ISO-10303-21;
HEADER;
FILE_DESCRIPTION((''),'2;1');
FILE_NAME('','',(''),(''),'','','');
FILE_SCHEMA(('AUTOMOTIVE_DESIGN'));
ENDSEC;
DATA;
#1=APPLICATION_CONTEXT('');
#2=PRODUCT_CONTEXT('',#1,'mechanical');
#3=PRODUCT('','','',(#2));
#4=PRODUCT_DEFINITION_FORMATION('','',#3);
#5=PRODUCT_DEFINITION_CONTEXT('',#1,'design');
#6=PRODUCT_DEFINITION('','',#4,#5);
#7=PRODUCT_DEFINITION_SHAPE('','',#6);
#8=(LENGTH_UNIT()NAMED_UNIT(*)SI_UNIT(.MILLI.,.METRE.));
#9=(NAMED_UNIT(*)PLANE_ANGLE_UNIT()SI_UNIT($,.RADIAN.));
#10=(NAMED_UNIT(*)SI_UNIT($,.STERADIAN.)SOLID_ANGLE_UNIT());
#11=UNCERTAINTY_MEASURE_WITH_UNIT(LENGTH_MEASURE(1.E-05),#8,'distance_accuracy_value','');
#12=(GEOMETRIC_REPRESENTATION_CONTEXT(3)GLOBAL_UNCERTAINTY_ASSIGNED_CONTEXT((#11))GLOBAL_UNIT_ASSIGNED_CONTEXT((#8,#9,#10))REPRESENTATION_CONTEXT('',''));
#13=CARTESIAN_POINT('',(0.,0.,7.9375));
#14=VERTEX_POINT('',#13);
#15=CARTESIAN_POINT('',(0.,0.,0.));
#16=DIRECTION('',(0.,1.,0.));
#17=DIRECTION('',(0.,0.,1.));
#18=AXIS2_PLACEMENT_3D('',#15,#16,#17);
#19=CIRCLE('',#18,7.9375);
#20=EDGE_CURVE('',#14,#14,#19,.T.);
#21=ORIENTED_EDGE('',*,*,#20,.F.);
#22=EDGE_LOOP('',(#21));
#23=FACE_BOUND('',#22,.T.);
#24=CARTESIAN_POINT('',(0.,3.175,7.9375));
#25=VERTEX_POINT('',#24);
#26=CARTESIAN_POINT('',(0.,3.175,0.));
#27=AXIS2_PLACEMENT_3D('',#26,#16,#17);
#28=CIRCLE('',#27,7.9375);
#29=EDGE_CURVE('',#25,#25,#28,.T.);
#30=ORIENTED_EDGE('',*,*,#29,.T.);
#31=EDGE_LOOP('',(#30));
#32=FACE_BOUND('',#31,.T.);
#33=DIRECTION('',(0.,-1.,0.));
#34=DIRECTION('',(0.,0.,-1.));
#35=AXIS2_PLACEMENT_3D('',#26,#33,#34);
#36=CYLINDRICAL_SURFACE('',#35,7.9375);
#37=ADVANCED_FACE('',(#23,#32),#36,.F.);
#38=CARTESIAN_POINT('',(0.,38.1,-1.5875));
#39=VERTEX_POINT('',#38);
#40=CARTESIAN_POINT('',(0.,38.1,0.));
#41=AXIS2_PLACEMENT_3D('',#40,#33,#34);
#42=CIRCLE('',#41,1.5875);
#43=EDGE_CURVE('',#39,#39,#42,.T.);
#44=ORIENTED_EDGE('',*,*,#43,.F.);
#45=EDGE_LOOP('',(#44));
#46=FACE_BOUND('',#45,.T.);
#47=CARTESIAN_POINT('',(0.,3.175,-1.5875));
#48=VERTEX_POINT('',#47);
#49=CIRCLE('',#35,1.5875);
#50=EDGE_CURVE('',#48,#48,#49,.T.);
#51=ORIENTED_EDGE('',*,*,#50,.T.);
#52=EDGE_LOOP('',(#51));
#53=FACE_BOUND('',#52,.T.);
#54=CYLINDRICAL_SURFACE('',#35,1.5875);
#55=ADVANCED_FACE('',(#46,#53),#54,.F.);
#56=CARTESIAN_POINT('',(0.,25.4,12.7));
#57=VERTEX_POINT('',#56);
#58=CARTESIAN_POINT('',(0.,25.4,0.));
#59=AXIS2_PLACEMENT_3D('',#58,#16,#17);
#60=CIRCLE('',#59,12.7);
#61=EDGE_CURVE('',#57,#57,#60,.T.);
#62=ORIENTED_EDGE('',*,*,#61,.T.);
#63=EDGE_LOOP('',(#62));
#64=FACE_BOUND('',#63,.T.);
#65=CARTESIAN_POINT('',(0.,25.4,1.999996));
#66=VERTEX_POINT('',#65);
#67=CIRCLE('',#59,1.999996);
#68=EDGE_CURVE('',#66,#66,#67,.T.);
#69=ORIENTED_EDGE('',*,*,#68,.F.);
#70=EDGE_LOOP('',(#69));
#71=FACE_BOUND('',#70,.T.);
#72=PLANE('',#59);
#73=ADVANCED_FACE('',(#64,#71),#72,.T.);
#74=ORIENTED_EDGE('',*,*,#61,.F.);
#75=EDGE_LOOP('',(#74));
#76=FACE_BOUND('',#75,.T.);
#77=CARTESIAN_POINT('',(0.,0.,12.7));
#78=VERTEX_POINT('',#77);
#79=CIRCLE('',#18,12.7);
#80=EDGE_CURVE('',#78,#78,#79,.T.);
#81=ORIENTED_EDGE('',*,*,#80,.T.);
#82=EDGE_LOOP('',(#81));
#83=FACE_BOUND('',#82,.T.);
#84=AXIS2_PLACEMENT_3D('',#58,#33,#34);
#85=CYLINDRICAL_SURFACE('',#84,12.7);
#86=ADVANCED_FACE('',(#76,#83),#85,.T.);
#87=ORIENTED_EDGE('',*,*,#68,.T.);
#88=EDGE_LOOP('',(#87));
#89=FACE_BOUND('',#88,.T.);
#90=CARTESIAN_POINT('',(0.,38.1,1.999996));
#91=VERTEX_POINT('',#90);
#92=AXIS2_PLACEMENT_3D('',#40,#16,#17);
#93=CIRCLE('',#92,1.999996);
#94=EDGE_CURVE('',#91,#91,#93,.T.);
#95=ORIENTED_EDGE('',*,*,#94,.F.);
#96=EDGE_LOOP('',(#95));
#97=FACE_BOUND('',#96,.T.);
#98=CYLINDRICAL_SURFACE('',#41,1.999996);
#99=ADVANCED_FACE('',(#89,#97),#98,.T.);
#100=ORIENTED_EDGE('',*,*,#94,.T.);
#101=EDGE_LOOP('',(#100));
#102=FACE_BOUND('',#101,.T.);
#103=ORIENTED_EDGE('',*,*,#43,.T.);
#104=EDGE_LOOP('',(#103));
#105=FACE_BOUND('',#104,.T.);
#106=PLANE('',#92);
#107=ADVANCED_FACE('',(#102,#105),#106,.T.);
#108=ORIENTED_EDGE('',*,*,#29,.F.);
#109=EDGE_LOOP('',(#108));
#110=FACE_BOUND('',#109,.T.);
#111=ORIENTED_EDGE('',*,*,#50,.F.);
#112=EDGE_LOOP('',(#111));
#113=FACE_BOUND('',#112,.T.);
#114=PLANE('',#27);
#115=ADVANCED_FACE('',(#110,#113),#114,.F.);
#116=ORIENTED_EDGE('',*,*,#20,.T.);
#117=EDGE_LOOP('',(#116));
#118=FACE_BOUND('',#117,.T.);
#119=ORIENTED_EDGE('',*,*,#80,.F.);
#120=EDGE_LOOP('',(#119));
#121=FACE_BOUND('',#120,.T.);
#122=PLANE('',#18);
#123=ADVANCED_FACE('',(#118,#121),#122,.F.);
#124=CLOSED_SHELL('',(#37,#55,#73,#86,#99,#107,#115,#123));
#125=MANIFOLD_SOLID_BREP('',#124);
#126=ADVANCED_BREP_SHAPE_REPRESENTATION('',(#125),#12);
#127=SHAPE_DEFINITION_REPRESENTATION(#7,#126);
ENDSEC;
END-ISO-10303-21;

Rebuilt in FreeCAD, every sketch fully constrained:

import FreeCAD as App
import Part
import Sketcher
from FreeCAD import Vector
Q = App.Units.Quantity

doc = App.newDocument("Part")
body = doc.addObject("PartDesign::Body", "Body")

sketch1 = body.newObject("Sketcher::SketchObject", "Sketch")
sketch1.AttachmentSupport = (doc.getObject("XZ_Plane"), [""])
sketch1.MapMode = "FlatFace"
sketch1.addGeometry(Part.Circle(Vector(0, 0, 0), Vector(0, 0, 1), 13), False)
sketch1.addConstraint([
    Sketcher.Constraint("Coincident", 0, 3, -1, 1),
    Sketcher.Constraint("Diameter", 0, Q("1 in")),
])
pad1 = body.newObject("PartDesign::Pad", "Pad")
pad1.Profile = sketch1
pad1.Length = Q("1 in")
pad1.Reversed = True

sketch2 = body.newObject("Sketcher::SketchObject", "Sketch001")
sketch2.AttachmentSupport = (doc.getObject("XZ_Plane"), [""])
sketch2.MapMode = "FlatFace"
sketch2.addGeometry(Part.Circle(Vector(0, 0, 0), Vector(0, 0, 1), 8), False)
sketch2.addConstraint([
    Sketcher.Constraint("Coincident", 0, 3, -1, 1),
    Sketcher.Constraint("Diameter", 0, Q("0.625 in")),
])
pocket1 = body.newObject("PartDesign::Pocket", "Pocket")
pocket1.Profile = sketch2
pocket1.Length = Q("0.125 in")

sketch3 = body.newObject("Sketcher::SketchObject", "Sketch002")
sketch3.AttachmentSupport = (doc.getObject("XZ_Plane"), [""])
sketch3.MapMode = "FlatFace"
sketch3.AttachmentOffset = App.Placement(Vector(0, 0, -1 * 25.4), App.Rotation())
sketch3.addGeometry(Part.Circle(Vector(0, 0, 0), Vector(0, 0, 1), 2), False)
sketch3.addConstraint([
    Sketcher.Constraint("Coincident", 0, 3, -1, 1),
    Sketcher.Constraint("Diameter", 0, Q("3.999992 mm")),
])
pad2 = body.newObject("PartDesign::Pad", "Pad001")
pad2.Profile = sketch3
pad2.Length = Q("0.5 in")
pad2.Reversed = True

sketch4 = body.newObject("Sketcher::SketchObject", "Sketch003")
sketch4.AttachmentSupport = (doc.getObject("XZ_Plane"), [""])
sketch4.MapMode = "FlatFace"
sketch4.AttachmentOffset = App.Placement(Vector(0, 0, -0.125 * 25.4), App.Rotation())
sketch4.addGeometry(Part.Circle(Vector(0, 0, 0), Vector(0, 0, 1), 1.6), False)
sketch4.addConstraint([
    Sketcher.Constraint("Coincident", 0, 3, -1, 1),
    Sketcher.Constraint("Diameter", 0, Q("0.125 in")),
])
doc.recompute()
hole = body.newObject("PartDesign::Hole", "Hole")
hole.Profile = sketch4
hole.ThreadType = "None"
hole.Diameter = Q("0.125 in")
hole.DepthType = "ThroughAll"

doc.recompute()
